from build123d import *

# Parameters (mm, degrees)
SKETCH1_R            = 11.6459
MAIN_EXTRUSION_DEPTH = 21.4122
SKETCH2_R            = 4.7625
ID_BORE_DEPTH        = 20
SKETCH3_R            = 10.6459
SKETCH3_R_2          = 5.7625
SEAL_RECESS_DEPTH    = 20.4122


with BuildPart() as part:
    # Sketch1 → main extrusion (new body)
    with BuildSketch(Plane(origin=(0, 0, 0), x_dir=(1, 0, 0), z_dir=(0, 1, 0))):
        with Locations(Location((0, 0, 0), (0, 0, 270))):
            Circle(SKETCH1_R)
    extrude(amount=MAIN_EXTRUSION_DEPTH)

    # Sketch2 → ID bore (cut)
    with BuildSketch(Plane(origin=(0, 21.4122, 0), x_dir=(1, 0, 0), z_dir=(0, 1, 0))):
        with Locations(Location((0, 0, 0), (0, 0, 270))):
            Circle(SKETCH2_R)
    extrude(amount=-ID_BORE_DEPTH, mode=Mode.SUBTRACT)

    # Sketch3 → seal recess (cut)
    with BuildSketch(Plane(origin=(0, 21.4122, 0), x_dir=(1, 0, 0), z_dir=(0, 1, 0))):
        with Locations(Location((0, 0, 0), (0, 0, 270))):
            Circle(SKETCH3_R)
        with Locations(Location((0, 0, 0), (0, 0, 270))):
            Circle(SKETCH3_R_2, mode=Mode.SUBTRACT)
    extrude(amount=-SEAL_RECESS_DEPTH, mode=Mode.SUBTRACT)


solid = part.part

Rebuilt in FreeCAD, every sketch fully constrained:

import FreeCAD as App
import Part
import Sketcher

V = App.Vector
Q = App.Units.Quantity

doc = App.newDocument("Part")
body = doc.addObject("PartDesign::Body", "Body")

# Sketch on XZ plane
sketch1 = body.newObject("Sketcher::SketchObject", "Sketch")
sketch1.AttachmentSupport = (doc.getObject("XZ_Plane"), [""])
sketch1.MapMode = "FlatFace"
sketch1.addGeometry(Part.Circle(V(0, 0, 0), V(0, 0, 1), 12), False)
sketch1.addConstraint([
    Sketcher.Constraint("Coincident", 0, 3, -1, 1),
    Sketcher.Constraint("Diameter", 0, Q("0.917 in")),
])
pad1 = body.newObject("PartDesign::Pad", "Pad")
pad1.Profile = sketch1
pad1.Length = Q("0.843 in")
pad1.Reversed = True

# Sketch on XZ plane
sketch2 = body.newObject("Sketcher::SketchObject", "Sketch001")
sketch2.AttachmentSupport = (doc.getObject("XZ_Plane"), [""])
sketch2.MapMode = "FlatFace"
sketch2.AttachmentOffset = App.Placement(V(0, 0, -0.843 * 25.4), App.Rotation())
sketch2.addGeometry(Part.Circle(V(0, 0, 0), V(0, 0, 1), 4.8), False)
sketch2.addConstraint([
    Sketcher.Constraint("Coincident", 0, 3, -1, 1),
    Sketcher.Constraint("Diameter", 0, Q("0.375 in")),
])
pocket1 = body.newObject("PartDesign::Pocket", "Pocket")
pocket1.Profile = sketch2
pocket1.Length = 20
pocket1.Reversed = True

# Sketch on XZ plane
sketch3 = body.newObject("Sketcher::SketchObject", "Sketch002")
sketch3.AttachmentSupport = (doc.getObject("XZ_Plane"), [""])
sketch3.MapMode = "FlatFace"
sketch3.AttachmentOffset = App.Placement(V(0, 0, -0.843 * 25.4), App.Rotation())
sketch3.addGeometry([
    Part.Circle(V(0, 0, 0), V(0, 0, 1), 11),
    Part.Circle(V(0, 0, 0), V(0, 0, 1), 6),
], False)
sketch3.addConstraint([
    Sketcher.Constraint("Coincident", 0, 3, -1, 1),
    Sketcher.Constraint("Coincident", 1, 3, -1, 1),
    Sketcher.Constraint("Diameter", 0, Q("21.2918 mm")),
    Sketcher.Constraint("Diameter", 1, Q("11.525 mm")),
])
pocket2 = body.newObject("PartDesign::Pocket", "Pocket001")
pocket2.Profile = sketch3
pocket2.Length = 20.4122
pocket2.Reversed = True

doc.recompute()
